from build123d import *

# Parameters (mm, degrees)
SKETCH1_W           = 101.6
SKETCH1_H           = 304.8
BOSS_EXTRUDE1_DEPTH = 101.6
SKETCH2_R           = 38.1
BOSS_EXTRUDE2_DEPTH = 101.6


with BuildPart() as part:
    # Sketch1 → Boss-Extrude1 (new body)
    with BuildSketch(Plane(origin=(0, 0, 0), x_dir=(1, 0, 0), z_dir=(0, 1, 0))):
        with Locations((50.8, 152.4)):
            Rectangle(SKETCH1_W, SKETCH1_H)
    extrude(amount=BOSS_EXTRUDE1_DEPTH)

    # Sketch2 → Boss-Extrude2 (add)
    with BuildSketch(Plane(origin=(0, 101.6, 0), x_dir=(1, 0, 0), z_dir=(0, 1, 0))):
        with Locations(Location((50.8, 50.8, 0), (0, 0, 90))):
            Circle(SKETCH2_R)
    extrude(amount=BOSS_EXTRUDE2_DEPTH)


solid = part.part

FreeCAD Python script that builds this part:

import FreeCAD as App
import Part
import Sketcher
Q = App.Units.Quantity


def add_polygon(sketch, points):
    """Adds a closed chain of lines whose ends are joined by coincident constraints."""
    first, n = sketch.GeometryCount, len(points)
    for a, b in zip(points, points[1:] + points[:1]):
        sketch.addGeometry(Part.LineSegment(App.Vector(*a, 0), App.Vector(*b, 0)), False)
    for i in range(n):
        sketch.addConstraint(Sketcher.Constraint("Coincident", first + i, 2, first + (i + 1) % n, 1))

doc = App.newDocument("Part")
body = doc.addObject("PartDesign::Body", "Body")

# Sketch on XZ plane
sketch1 = doc.addObject("Sketcher::SketchObject", "Sketch")
body.addObject(sketch1)
sketch1.AttachmentSupport = (doc.XZ_Plane, [""])
sketch1.MapMode = "FlatFace"
add_polygon(sketch1, [(0, -305), (0, 0), (102, 0), (102, -305)])  # lines 0-3
sketch1.addConstraint([
    Sketcher.Constraint("Vertical", 0),
    Sketcher.Constraint("Horizontal", 1),
    Sketcher.Constraint("Vertical", 2),
    Sketcher.Constraint("Horizontal", 3),
    Sketcher.Constraint("Coincident", 0, 2, -1, 1),
    Sketcher.Constraint("DistanceX", 1, 1, 1, 2, Q("4 in")),
    Sketcher.Constraint("DistanceY", 0, 1, 0, 2, Q("12 in")),
])
pad1 = doc.addObject("PartDesign::Pad", "Pad")
body.addObject(pad1)
pad1.Profile = sketch1
pad1.Length = Q("4 in")
pad1.Reversed = True

# Sketch on XZ plane
sketch2 = doc.addObject("Sketcher::SketchObject", "Sketch001")
body.addObject(sketch2)
sketch2.AttachmentSupport = (doc.XZ_Plane, [""])
sketch2.MapMode = "FlatFace"
sketch2.AttachmentOffset = App.Placement(App.Vector(0, 0, -4 * 25.4), App.Rotation())
sketch2.addGeometry(Part.Circle(App.Vector(51, -51, 0), App.Vector(0, 0, 1), 38), False)
sketch2.addConstraint([
    Sketcher.Constraint("Diameter", 0, Q("3 in")),
    Sketcher.Constraint("DistanceX", -1, 1, 0, 3, Q("2 in")),
    Sketcher.Constraint("DistanceY", 0, 3, -1, 1, Q("2 in")),
])
pad2 = doc.addObject("PartDesign::Pad", "Pad001")
body.addObject(pad2)
pad2.Profile = sketch2
pad2.Length = Q("4 in")
pad2.Reversed = True

doc.recompute()
